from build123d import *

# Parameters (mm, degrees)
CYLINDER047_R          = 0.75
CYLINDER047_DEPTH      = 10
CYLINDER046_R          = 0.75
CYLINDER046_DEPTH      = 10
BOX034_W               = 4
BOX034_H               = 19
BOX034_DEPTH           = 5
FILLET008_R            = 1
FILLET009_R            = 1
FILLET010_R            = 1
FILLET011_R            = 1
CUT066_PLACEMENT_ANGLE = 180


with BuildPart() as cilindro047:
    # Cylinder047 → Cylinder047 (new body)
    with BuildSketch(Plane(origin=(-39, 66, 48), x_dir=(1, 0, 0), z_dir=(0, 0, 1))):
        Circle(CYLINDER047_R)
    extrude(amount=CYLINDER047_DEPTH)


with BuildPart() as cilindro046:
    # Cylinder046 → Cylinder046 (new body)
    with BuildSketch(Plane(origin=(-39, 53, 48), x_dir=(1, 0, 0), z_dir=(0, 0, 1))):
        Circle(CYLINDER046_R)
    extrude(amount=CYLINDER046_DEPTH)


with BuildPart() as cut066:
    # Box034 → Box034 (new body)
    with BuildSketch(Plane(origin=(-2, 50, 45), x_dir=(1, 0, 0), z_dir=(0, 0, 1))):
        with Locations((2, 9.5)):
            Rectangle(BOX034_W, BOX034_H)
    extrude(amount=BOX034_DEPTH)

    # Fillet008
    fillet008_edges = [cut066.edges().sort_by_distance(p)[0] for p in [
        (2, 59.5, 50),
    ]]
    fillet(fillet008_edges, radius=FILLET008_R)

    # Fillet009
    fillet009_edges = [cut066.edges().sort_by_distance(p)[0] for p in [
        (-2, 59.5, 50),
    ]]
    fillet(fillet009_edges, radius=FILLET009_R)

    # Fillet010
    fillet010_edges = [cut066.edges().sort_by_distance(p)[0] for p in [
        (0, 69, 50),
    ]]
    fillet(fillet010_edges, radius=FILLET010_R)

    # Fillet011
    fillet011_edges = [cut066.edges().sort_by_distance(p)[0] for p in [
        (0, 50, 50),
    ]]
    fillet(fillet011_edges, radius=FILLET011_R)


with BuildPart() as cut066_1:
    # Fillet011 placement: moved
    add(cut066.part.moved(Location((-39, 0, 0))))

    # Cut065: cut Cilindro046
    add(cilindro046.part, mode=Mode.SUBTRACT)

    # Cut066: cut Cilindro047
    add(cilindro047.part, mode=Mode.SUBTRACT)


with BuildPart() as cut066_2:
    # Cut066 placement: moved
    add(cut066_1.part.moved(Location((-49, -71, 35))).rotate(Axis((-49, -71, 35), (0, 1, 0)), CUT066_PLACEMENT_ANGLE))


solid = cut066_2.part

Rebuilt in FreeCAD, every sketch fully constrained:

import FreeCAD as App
import Part
import Sketcher
Q = App.Units.Quantity


def edges_at(feature, points):
    """Names of the edges that pass closest to the given points."""
    edges = feature.Shape.Edges
    near = lambda p: min(range(len(edges)), key=lambda i: edges[i].distToShape(Part.Vertex(*p))[0])
    return sorted({f"Edge{near(p) + 1}" for p in points})


def add_polygon(sketch, points):
    """Adds a closed chain of lines whose ends are joined by coincident constraints."""
    first, n = sketch.GeometryCount, len(points)
    for a, b in zip(points, points[1:] + points[:1]):
        sketch.addGeometry(Part.LineSegment(App.Vector(*a, 0), App.Vector(*b, 0)), False)
    for i in range(n):
        sketch.addConstraint(Sketcher.Constraint("Coincident", first + i, 2, first + (i + 1) % n, 1))

doc = App.newDocument("Part")
body = doc.addObject("PartDesign::Body", "Body")

sketch1 = body.newObject("Sketcher::SketchObject", "Sketch")
sketch1.AttachmentSupport = (doc.getObject("XY_Plane"), [""])
sketch1.MapMode = "FlatFace"
sketch1.AttachmentOffset = App.Placement(App.Vector(0, 0, 48), App.Rotation())
sketch1.addGeometry(Part.Circle(App.Vector(-39, 66, 0), App.Vector(0, 0, 1), 0.8), False)
sketch1.addConstraint(Sketcher.Constraint("Diameter", 0, Q("1.5 mm")))
sketch1.addConstraint(Sketcher.Constraint("DistanceX", 0, 3, -1, 1, Q("39 mm")))
sketch1.addConstraint(Sketcher.Constraint("DistanceY", -1, 1, 0, 3, Q("66 mm")))
pad1 = body.newObject("PartDesign::Pad", "Pad")
pad1.Profile = sketch1
pad1.Length = 10
body2 = doc.addObject("PartDesign::Body", "Body001")

sketch2 = body2.newObject("Sketcher::SketchObject", "Sketch001")
sketch2.AttachmentSupport = (doc.getObject("XY_Plane001"), [""])
sketch2.MapMode = "FlatFace"
sketch2.AttachmentOffset = App.Placement(App.Vector(0, 0, 48), App.Rotation())
sketch2.addGeometry(Part.Circle(App.Vector(-39, 53, 0), App.Vector(0, 0, 1), 0.8), False)
sketch2.addConstraint(Sketcher.Constraint("Diameter", 0, Q("1.5 mm")))
sketch2.addConstraint(Sketcher.Constraint("DistanceX", 0, 3, -1, 1, Q("39 mm")))
sketch2.addConstraint(Sketcher.Constraint("DistanceY", -1, 1, 0, 3, Q("53 mm")))
pad2 = body2.newObject("PartDesign::Pad", "Pad001")
pad2.Profile = sketch2
pad2.Length = 10
body3 = doc.addObject("PartDesign::Body", "Body002")

sketch3 = body3.newObject("Sketcher::SketchObject", "Sketch002")
sketch3.AttachmentSupport = (doc.getObject("XY_Plane002"), [""])
sketch3.MapMode = "FlatFace"
sketch3.AttachmentOffset = App.Placement(App.Vector(0, 0, 45), App.Rotation())
add_polygon(sketch3, [(-2, 69), (-2, 50), (2, 50), (2, 69)])
sketch3.addConstraint(Sketcher.Constraint("Vertical", 0))
sketch3.addConstraint(Sketcher.Constraint("Horizontal", 1))
sketch3.addConstraint(Sketcher.Constraint("Vertical", 2))
sketch3.addConstraint(Sketcher.Constraint("Horizontal", 3))
sketch3.addConstraint(Sketcher.Constraint("DistanceX", 1, 1, 1, 2, Q("4 mm")))
sketch3.addConstraint(Sketcher.Constraint("DistanceY", 0, 2, 0, 1, Q("19 mm")))
sketch3.addConstraint(Sketcher.Constraint("DistanceX", 0, 2, -1, 1, Q("2 mm")))
sketch3.addConstraint(Sketcher.Constraint("DistanceY", -1, 1, 0, 2, Q("50 mm")))
pad3 = body3.newObject("PartDesign::Pad", "Pad002")
pad3.Profile = sketch3
pad3.Length = 5
doc.recompute()

fillet = body3.newObject("PartDesign::Fillet", "Fillet")
fillet.Base = (pad3, edges_at(pad3, [(2, 59.5, 50)]))
fillet.Radius = 1
doc.recompute()

fillet2 = body3.newObject("PartDesign::Fillet", "Fillet001")
fillet2.Base = (fillet, edges_at(fillet, [(-2, 59.5, 50)]))
fillet2.Radius = 1
doc.recompute()

fillet3 = body3.newObject("PartDesign::Fillet", "Fillet002")
fillet3.Base = (fillet2, edges_at(fillet2, [(0, 69, 50)]))
fillet3.Radius = 1
doc.recompute()

fillet4 = body3.newObject("PartDesign::Fillet", "Fillet003")
fillet4.Base = (fillet3, edges_at(fillet3, [(0, 50, 50)]))
fillet4.Radius = 1
body4 = doc.addObject("PartDesign::Body", "Body003")
doc.recompute()

body3.Placement = App.Placement(App.Vector(-39, 0, 0), App.Rotation(App.Vector(0, 0, 1), 0))
boolean = body4.newObject("PartDesign::Boolean", "Boolean")
boolean.Type = "Fuse"
boolean.addObjects([body3])
doc.recompute()

boolean2 = body4.newObject("PartDesign::Boolean", "Boolean001")
boolean2.Type = "Cut"
boolean2.addObjects([body2])
doc.recompute()

boolean3 = body4.newObject("PartDesign::Boolean", "Boolean002")
boolean3.Type = "Cut"
boolean3.addObjects([body])
body5 = doc.addObject("PartDesign::Body", "Body004")
doc.recompute()

body4.Placement = App.Placement(App.Vector(-49, -71, 35), App.Rotation(App.Vector(0, 1, 0), 180))
boolean4 = body5.newObject("PartDesign::Boolean", "Boolean003")
boolean4.Type = "Fuse"
boolean4.addObjects([body4])

doc.recompute()
